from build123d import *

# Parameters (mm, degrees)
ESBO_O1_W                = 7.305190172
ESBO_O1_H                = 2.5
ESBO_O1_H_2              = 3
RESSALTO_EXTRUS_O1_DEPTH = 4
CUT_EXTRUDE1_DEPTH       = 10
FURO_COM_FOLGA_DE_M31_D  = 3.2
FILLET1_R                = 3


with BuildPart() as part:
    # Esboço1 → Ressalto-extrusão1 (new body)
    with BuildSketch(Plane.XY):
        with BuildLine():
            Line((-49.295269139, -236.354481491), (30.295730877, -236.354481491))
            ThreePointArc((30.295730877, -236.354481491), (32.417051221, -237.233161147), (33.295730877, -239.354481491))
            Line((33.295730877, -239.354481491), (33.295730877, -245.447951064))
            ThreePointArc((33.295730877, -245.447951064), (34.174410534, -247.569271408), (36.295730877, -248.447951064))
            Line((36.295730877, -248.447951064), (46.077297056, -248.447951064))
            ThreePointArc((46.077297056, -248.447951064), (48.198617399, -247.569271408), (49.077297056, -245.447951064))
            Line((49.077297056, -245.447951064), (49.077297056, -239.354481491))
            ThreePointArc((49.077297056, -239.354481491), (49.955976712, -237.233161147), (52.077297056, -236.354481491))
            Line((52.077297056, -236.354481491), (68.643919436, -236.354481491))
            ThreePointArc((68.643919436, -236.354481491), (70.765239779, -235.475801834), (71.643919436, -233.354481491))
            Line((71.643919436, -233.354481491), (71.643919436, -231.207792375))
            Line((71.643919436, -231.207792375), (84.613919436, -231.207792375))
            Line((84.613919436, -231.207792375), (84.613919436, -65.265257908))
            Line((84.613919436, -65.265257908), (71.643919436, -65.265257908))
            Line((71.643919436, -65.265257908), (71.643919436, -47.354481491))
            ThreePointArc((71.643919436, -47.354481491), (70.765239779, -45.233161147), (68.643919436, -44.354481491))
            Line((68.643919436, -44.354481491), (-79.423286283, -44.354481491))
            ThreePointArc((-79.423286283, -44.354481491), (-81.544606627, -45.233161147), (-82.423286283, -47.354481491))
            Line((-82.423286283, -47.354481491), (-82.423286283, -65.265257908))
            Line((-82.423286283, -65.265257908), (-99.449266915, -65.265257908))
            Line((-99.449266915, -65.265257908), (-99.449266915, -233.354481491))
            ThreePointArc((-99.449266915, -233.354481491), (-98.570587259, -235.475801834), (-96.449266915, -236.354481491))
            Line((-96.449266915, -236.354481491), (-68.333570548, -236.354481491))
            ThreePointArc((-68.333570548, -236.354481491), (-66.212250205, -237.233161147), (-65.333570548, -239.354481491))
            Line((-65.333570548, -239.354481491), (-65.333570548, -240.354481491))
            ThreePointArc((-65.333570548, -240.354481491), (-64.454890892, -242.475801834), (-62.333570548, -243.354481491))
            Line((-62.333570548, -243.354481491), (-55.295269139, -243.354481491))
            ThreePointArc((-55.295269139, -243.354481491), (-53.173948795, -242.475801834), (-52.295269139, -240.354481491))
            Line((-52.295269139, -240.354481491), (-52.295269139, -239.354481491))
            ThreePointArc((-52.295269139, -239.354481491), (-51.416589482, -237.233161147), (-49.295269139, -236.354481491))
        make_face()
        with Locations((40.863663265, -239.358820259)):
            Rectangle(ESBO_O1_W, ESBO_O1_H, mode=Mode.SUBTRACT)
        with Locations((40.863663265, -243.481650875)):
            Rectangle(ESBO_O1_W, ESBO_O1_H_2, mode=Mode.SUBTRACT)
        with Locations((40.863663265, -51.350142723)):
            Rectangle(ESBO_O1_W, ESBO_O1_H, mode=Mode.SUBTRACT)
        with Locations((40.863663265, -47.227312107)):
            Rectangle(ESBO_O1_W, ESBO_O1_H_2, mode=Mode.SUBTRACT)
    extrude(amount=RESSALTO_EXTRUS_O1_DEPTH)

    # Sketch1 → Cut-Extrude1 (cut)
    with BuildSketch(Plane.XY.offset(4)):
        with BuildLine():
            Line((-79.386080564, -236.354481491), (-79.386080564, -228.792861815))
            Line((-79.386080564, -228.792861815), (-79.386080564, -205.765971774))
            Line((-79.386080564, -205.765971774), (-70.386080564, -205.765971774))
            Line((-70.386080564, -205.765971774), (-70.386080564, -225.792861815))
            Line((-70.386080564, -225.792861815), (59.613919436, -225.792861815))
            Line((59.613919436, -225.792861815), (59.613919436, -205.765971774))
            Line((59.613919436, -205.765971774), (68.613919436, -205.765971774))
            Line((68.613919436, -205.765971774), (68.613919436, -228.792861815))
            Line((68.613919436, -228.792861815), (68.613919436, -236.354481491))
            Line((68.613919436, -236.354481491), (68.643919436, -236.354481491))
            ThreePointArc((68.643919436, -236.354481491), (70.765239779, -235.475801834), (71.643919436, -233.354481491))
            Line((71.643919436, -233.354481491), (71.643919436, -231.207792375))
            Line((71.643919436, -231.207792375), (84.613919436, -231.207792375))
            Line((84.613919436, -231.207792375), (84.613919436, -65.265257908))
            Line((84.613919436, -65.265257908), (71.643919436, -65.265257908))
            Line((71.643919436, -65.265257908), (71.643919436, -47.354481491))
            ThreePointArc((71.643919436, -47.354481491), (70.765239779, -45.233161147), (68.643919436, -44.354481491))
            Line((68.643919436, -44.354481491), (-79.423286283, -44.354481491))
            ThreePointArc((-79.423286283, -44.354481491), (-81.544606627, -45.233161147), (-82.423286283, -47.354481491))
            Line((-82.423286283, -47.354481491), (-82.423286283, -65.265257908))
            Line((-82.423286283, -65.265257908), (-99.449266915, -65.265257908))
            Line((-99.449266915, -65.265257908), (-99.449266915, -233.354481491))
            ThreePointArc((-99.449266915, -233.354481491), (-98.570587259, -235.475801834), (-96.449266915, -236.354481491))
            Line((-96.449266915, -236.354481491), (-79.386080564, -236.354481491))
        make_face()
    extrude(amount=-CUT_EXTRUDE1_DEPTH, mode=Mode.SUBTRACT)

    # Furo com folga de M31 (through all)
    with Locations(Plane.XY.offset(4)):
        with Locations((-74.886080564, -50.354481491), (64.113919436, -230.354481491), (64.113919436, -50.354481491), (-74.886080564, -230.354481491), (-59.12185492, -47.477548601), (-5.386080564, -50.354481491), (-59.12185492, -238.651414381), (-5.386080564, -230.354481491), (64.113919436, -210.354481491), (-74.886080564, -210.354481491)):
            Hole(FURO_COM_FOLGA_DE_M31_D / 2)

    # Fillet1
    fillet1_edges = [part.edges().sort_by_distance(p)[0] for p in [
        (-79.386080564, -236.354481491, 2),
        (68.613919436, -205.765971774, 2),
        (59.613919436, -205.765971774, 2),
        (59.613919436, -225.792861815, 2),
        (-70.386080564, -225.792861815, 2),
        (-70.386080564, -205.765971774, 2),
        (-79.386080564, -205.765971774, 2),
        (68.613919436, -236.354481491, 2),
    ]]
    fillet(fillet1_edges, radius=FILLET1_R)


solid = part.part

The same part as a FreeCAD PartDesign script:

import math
import FreeCAD as App
import Part
import Sketcher

V = App.Vector


def edges_at(feature, points):
    """Names of the edges that pass closest to the given points."""
    edges = feature.Shape.Edges
    near = lambda p: min(range(len(edges)), key=lambda i: edges[i].distToShape(Part.Vertex(*p))[0])
    return sorted({f"Edge{near(p) + 1}" for p in points})

doc = App.newDocument("Part")
body = doc.addObject("PartDesign::Body", "Body")

sketch1 = body.newObject("Sketcher::SketchObject", "Sketch")
sketch1.AttachmentSupport = (doc.getObject("XY_Plane"), [""])
sketch1.MapMode = "FlatFace"
sketch1.addGeometry([
    Part.LineSegment(V(-49.295269, -236.354481, 0), V(30.295731, -236.354481, 0)),
    Part.ArcOfCircle(Part.Circle(V(30.295731, -239.354481, 0), V(0, 0, 1), 3), math.radians(0), math.radians(90)),
    Part.LineSegment(V(33.295731, -239.354481, 0), V(33.295731, -245.447951, 0)),
    Part.ArcOfCircle(Part.Circle(V(36.295731, -245.447951, 0), V(0, 0, 1), 3), math.radians(180), math.radians(270)),
    Part.LineSegment(V(36.295731, -248.447951, 0), V(46.077297, -248.447951, 0)),
    Part.ArcOfCircle(Part.Circle(V(46.077297, -245.447951, 0), V(0, 0, 1), 3), math.radians(-90), math.radians(0)),
    Part.LineSegment(V(49.077297, -245.447951, 0), V(49.077297, -239.354481, 0)),
    Part.ArcOfCircle(Part.Circle(V(52.077297, -239.354481, 0), V(0, 0, 1), 3), math.radians(90), math.radians(180)),
    Part.LineSegment(V(52.077297, -236.354481, 0), V(68.643919, -236.354481, 0)),
    Part.ArcOfCircle(Part.Circle(V(68.643919, -233.354481, 0), V(0, 0, 1), 3), math.radians(-90), math.radians(0)),
    Part.LineSegment(V(71.643919, -233.354481, 0), V(71.643919, -231.207792, 0)),
    Part.LineSegment(V(71.643919, -231.207792, 0), V(84.613919, -231.207792, 0)),
    Part.LineSegment(V(84.613919, -231.207792, 0), V(84.613919, -65.265258, 0)),
    Part.LineSegment(V(84.613919, -65.265258, 0), V(71.643919, -65.265258, 0)),
    Part.LineSegment(V(71.643919, -65.265258, 0), V(71.643919, -47.354481, 0)),
    Part.ArcOfCircle(Part.Circle(V(68.643919, -47.354481, 0), V(0, 0, 1), 3), math.radians(0), math.radians(90)),
    Part.LineSegment(V(68.643919, -44.354481, 0), V(-79.423286, -44.354481, 0)),
    Part.ArcOfCircle(Part.Circle(V(-79.423286, -47.354481, 0), V(0, 0, 1), 3), math.radians(90), math.radians(180)),
    Part.LineSegment(V(-82.423286, -47.354481, 0), V(-82.423286, -65.265258, 0)),
    Part.LineSegment(V(-82.423286, -65.265258, 0), V(-99.449267, -65.265258, 0)),
    Part.LineSegment(V(-99.449267, -65.265258, 0), V(-99.449267, -233.354481, 0)),
    Part.ArcOfCircle(Part.Circle(V(-96.449267, -233.354481, 0), V(0, 0, 1), 3), math.radians(180), math.radians(270)),
    Part.LineSegment(V(-96.449267, -236.354481, 0), V(-68.333571, -236.354481, 0)),
    Part.ArcOfCircle(Part.Circle(V(-68.333571, -239.354481, 0), V(0, 0, 1), 3), math.radians(0), math.radians(90)),
    Part.LineSegment(V(-65.333571, -239.354481, 0), V(-65.333571, -240.354481, 0)),
    Part.ArcOfCircle(Part.Circle(V(-62.333571, -240.354481, 0), V(0, 0, 1), 3), math.radians(180), math.radians(270)),
    Part.LineSegment(V(-62.333571, -243.354481, 0), V(-55.295269, -243.354481, 0)),
    Part.ArcOfCircle(Part.Circle(V(-55.295269, -240.354481, 0), V(0, 0, 1), 3), math.radians(-90), math.radians(0)),
    Part.LineSegment(V(-52.295269, -240.354481, 0), V(-52.295269, -239.354481, 0)),
    Part.ArcOfCircle(Part.Circle(V(-49.295269, -239.354481, 0), V(0, 0, 1), 3), math.radians(90), math.radians(180)),
    Part.LineSegment(V(44.516258, -244.981651, 0), V(37.211068, -244.981651, 0)),
    Part.LineSegment(V(37.211068, -244.981651, 0), V(37.211068, -241.981651, 0)),
    Part.LineSegment(V(37.211068, -241.981651, 0), V(44.516258, -241.981651, 0)),
    Part.LineSegment(V(44.516258, -241.981651, 0), V(44.516258, -244.981651, 0)),
    Part.LineSegment(V(44.516258, -240.60882, 0), V(37.211068, -240.60882, 0)),
    Part.LineSegment(V(37.211068, -240.60882, 0), V(37.211068, -238.10882, 0)),
    Part.LineSegment(V(37.211068, -238.10882, 0), V(44.516258, -238.10882, 0)),
    Part.LineSegment(V(44.516258, -238.10882, 0), V(44.516258, -240.60882, 0)),
    Part.LineSegment(V(44.516258, -52.600143, 0), V(37.211068, -52.600143, 0)),
    Part.LineSegment(V(37.211068, -52.600143, 0), V(37.211068, -50.100143, 0)),
    Part.LineSegment(V(37.211068, -50.100143, 0), V(44.516258, -50.100143, 0)),
    Part.LineSegment(V(44.516258, -50.100143, 0), V(44.516258, -52.600143, 0)),
    Part.LineSegment(V(44.516258, -48.727312, 0), V(37.211068, -48.727312, 0)),
    Part.LineSegment(V(37.211068, -48.727312, 0), V(37.211068, -45.727312, 0)),
    Part.LineSegment(V(37.211068, -45.727312, 0), V(44.516258, -45.727312, 0)),
    Part.LineSegment(V(44.516258, -45.727312, 0), V(44.516258, -48.727312, 0)),
], False)
sketch1.addConstraint([
    Sketcher.Constraint("Tangent", 0, 2, 1, 2),
    Sketcher.Constraint("Tangent", 1, 1, 2, 1),
    Sketcher.Constraint("Tangent", 2, 2, 3, 1),
    Sketcher.Constraint("Tangent", 3, 2, 4, 1),
    Sketcher.Constraint("Tangent", 4, 2, 5, 1),
    Sketcher.Constraint("Tangent", 5, 2, 6, 1),
    Sketcher.Constraint("Tangent", 6, 2, 7, 2),
    Sketcher.Constraint("Tangent", 7, 1, 8, 1),
    Sketcher.Constraint("Tangent", 8, 2, 9, 1),
    Sketcher.Constraint("Tangent", 9, 2, 10, 1),
    Sketcher.Constraint("Coincident", 10, 2, 11, 1),
    Sketcher.Constraint("Coincident", 11, 2, 12, 1),
    Sketcher.Constraint("Coincident", 12, 2, 13, 1),
    Sketcher.Constraint("Coincident", 13, 2, 14, 1),
    Sketcher.Constraint("Tangent", 14, 2, 15, 1),
    Sketcher.Constraint("Tangent", 15, 2, 16, 1),
    Sketcher.Constraint("Tangent", 16, 2, 17, 1),
    Sketcher.Constraint("Tangent", 17, 2, 18, 1),
    Sketcher.Constraint("Coincident", 18, 2, 19, 1),
    Sketcher.Constraint("Coincident", 19, 2, 20, 1),
    Sketcher.Constraint("Tangent", 20, 2, 21, 1),
    Sketcher.Constraint("Tangent", 21, 2, 22, 1),
    Sketcher.Constraint("Tangent", 22, 2, 23, 2),
    Sketcher.Constraint("Tangent", 23, 1, 24, 1),
    Sketcher.Constraint("Tangent", 24, 2, 25, 1),
    Sketcher.Constraint("Tangent", 25, 2, 26, 1),
    Sketcher.Constraint("Tangent", 26, 2, 27, 1),
    Sketcher.Constraint("Tangent", 27, 2, 28, 1),
    Sketcher.Constraint("Tangent", 28, 2, 29, 2),
    Sketcher.Constraint("Tangent", 29, 1, 0, 1),
    Sketcher.Constraint("Coincident", 30, 2, 31, 1),
    Sketcher.Constraint("Coincident", 31, 2, 32, 1),
    Sketcher.Constraint("Coincident", 32, 2, 33, 1),
    Sketcher.Constraint("Coincident", 33, 2, 30, 1),
    Sketcher.Constraint("Coincident", 34, 2, 35, 1),
    Sketcher.Constraint("Coincident", 35, 2, 36, 1),
    Sketcher.Constraint("Coincident", 36, 2, 37, 1),
    Sketcher.Constraint("Coincident", 37, 2, 34, 1),
    Sketcher.Constraint("Coincident", 38, 2, 39, 1),
    Sketcher.Constraint("Coincident", 39, 2, 40, 1),
    Sketcher.Constraint("Coincident", 40, 2, 41, 1),
    Sketcher.Constraint("Coincident", 41, 2, 38, 1),
    Sketcher.Constraint("Coincident", 42, 2, 43, 1),
    Sketcher.Constraint("Coincident", 43, 2, 44, 1),
    Sketcher.Constraint("Coincident", 44, 2, 45, 1),
    Sketcher.Constraint("Coincident", 45, 2, 42, 1),
    Sketcher.Constraint("Horizontal", 0),
    Sketcher.Constraint("Vertical", 2),
    Sketcher.Constraint("Horizontal", 4),
    Sketcher.Constraint("Vertical", 6),
    Sketcher.Constraint("Horizontal", 8),
    Sketcher.Constraint("Vertical", 10),
    Sketcher.Constraint("Horizontal", 11),
    Sketcher.Constraint("Vertical", 12),
    Sketcher.Constraint("Horizontal", 13),
    Sketcher.Constraint("Vertical", 14),
    Sketcher.Constraint("Horizontal", 16),
    Sketcher.Constraint("Vertical", 18),
    Sketcher.Constraint("Horizontal", 19),
    Sketcher.Constraint("Vertical", 20),
    Sketcher.Constraint("Horizontal", 22),
    Sketcher.Constraint("Vertical", 24),
    Sketcher.Constraint("Horizontal", 26),
    Sketcher.Constraint("Vertical", 28),
    Sketcher.Constraint("Horizontal", 30),
    Sketcher.Constraint("Vertical", 31),
    Sketcher.Constraint("Horizontal", 32),
    Sketcher.Constraint("Vertical", 33),
    Sketcher.Constraint("Horizontal", 34),
    Sketcher.Constraint("Vertical", 35),
    Sketcher.Constraint("Horizontal", 36),
    Sketcher.Constraint("Vertical", 37),
    Sketcher.Constraint("Horizontal", 38),
    Sketcher.Constraint("Vertical", 39),
    Sketcher.Constraint("Horizontal", 40),
    Sketcher.Constraint("Vertical", 41),
    Sketcher.Constraint("Horizontal", 42),
    Sketcher.Constraint("Vertical", 43),
    Sketcher.Constraint("Horizontal", 44),
    Sketcher.Constraint("Vertical", 45),
    Sketcher.Constraint("Equal", 1, 3),
    Sketcher.Constraint("Equal", 3, 5),
    Sketcher.Constraint("Equal", 5, 7),
    Sketcher.Constraint("Equal", 7, 9),
    Sketcher.Constraint("Equal", 9, 15),
    Sketcher.Constraint("Equal", 15, 17),
    Sketcher.Constraint("Equal", 17, 21),
    Sketcher.Constraint("Equal", 21, 23),
    Sketcher.Constraint("Equal", 23, 25),
    Sketcher.Constraint("Equal", 25, 27),
    Sketcher.Constraint("Equal", 27, 29),
    Sketcher.Constraint("Horizontal", 1, 3, 7, 3),
    Sketcher.Constraint("Horizontal", 9, 3, 21, 3),
    Sketcher.Constraint("Horizontal", 13, 2, 18, 2),
    Sketcher.Constraint("Vertical", 9, 3, 15, 3),
    Sketcher.Constraint("Vertical", 31, 2, 34, 2),
    Sketcher.Constraint("Vertical", 33, 2, 36, 2),
    Sketcher.Constraint("Vertical", 35, 2, 38, 2),
    Sketcher.Constraint("Vertical", 37, 2, 40, 2),
    Sketcher.Constraint("Vertical", 39, 2, 42, 2),
    Sketcher.Constraint("Vertical", 41, 2, 44, 2),
    Sketcher.Constraint("Equal", 37, 39),
    Sketcher.Constraint("Equal", 33, 43),
    Sketcher.Constraint("Radius", 1, 3.0),
    Sketcher.Constraint("DistanceY", 24, 2, 24, 1, 1.0),
    Sketcher.Constraint("DistanceY", 31, 1, 31, 2, 3.0),
    Sketcher.Constraint("DistanceY", 35, 1, 35, 2, 2.5),
    Sketcher.Constraint("DistanceY", 9, 3, 15, 3, 186.0),
    Sketcher.Constraint("DistanceX", 11, 1, 11, 2, 12.97),
    Sketcher.Constraint("DistanceX", 0, 1, 0, 2, 79.591),
    Sketcher.Constraint("DistanceX", 26, 1, 26, 2, 7.038301),
    Sketcher.Constraint("DistanceX", 19, 2, 19, 1, 17.025981),
    Sketcher.Constraint("DistanceX", 30, 2, 30, 1, 7.30519),
    Sketcher.Constraint("DistanceY", 2, 2, 2, 1, 6.09347),
    Sketcher.Constraint("DistanceY", 10, 1, 10, 2, 2.146689),
    Sketcher.Constraint("DistanceY", 3, 3, 30, 2, 0.4663),
    Sketcher.Constraint("DistanceX", 4, 1, 4, 2, 9.781566),
    Sketcher.Constraint("DistanceX", 8, 1, 8, 2, 16.566622),
    Sketcher.Constraint("DistanceX", 16, 2, 16, 1, 148.067206),
    Sketcher.Constraint("DistanceY", 12, 1, 12, 2, 165.942534),
    Sketcher.Constraint("DistanceX", -1, 1, 1, 3, 30.295731),
    Sketcher.Constraint("DistanceY", 1, 3, -1, 1, 239.354481),
    Sketcher.Constraint("DistanceX", -1, 1, 30, 2, 37.211068),
    Sketcher.Constraint("DistanceY", 34, 2, -1, 1, 240.60882),
    Sketcher.Constraint("DistanceY", 38, 2, 15, 3, 5.245661),
    Sketcher.Constraint("DistanceY", 39, 2, 42, 2, 1.372831),
])
pad1 = body.newObject("PartDesign::Pad", "Pad")
pad1.Profile = sketch1
pad1.Length = 4

sketch2 = body.newObject("Sketcher::SketchObject", "Sketch001")
sketch2.AttachmentSupport = (doc.getObject("XY_Plane"), [""])
sketch2.MapMode = "FlatFace"
sketch2.AttachmentOffset = App.Placement(V(0, 0, 4), App.Rotation())
sketch2.addGeometry([
    Part.LineSegment(V(-79.386081, -236.354481, 0), V(-79.386081, -205.765972, 0)),
    Part.LineSegment(V(-79.386081, -205.765972, 0), V(-70.386081, -205.765972, 0)),
    Part.LineSegment(V(-70.386081, -205.765972, 0), V(-70.386081, -225.792862, 0)),
    Part.LineSegment(V(-70.386081, -225.792862, 0), V(59.613919, -225.792862, 0)),
    Part.LineSegment(V(59.613919, -225.792862, 0), V(59.613919, -205.765972, 0)),
    Part.LineSegment(V(59.613919, -205.765972, 0), V(68.613919, -205.765972, 0)),
    Part.LineSegment(V(68.613919, -205.765972, 0), V(68.613919, -236.354481, 0)),
    Part.LineSegment(V(68.613919, -236.354481, 0), V(68.643919, -236.354481, 0)),
    Part.ArcOfCircle(Part.Circle(V(68.643919, -233.354481, 0), V(0, 0, 1), 3), math.radians(-90), math.radians(0)),
    Part.LineSegment(V(71.643919, -233.354481, 0), V(71.643919, -231.207792, 0)),
    Part.LineSegment(V(71.643919, -231.207792, 0), V(84.613919, -231.207792, 0)),
    Part.LineSegment(V(84.613919, -231.207792, 0), V(84.613919, -65.265258, 0)),
    Part.LineSegment(V(84.613919, -65.265258, 0), V(71.643919, -65.265258, 0)),
    Part.LineSegment(V(71.643919, -65.265258, 0), V(71.643919, -47.354481, 0)),
    Part.ArcOfCircle(Part.Circle(V(68.643919, -47.354481, 0), V(0, 0, 1), 3), math.radians(0), math.radians(90)),
    Part.LineSegment(V(68.643919, -44.354481, 0), V(-79.423286, -44.354481, 0)),
    Part.ArcOfCircle(Part.Circle(V(-79.423286, -47.354481, 0), V(0, 0, 1), 3), math.radians(90), math.radians(180)),
    Part.LineSegment(V(-82.423286, -47.354481, 0), V(-82.423286, -65.265258, 0)),
    Part.LineSegment(V(-82.423286, -65.265258, 0), V(-99.449267, -65.265258, 0)),
    Part.LineSegment(V(-99.449267, -65.265258, 0), V(-99.449267, -233.354481, 0)),
    Part.ArcOfCircle(Part.Circle(V(-96.449267, -233.354481, 0), V(0, 0, 1), 3), math.radians(180), math.radians(270)),
    Part.LineSegment(V(-96.449267, -236.354481, 0), V(-79.386081, -236.354481, 0)),
], False)
sketch2.addConstraint([
    Sketcher.Constraint("Coincident", 0, 2, 1, 1),
    Sketcher.Constraint("Coincident", 1, 2, 2, 1),
    Sketcher.Constraint("Coincident", 2, 2, 3, 1),
    Sketcher.Constraint("Coincident", 3, 2, 4, 1),
    Sketcher.Constraint("Coincident", 4, 2, 5, 1),
    Sketcher.Constraint("Coincident", 5, 2, 6, 1),
    Sketcher.Constraint("Coincident", 6, 2, 7, 1),
    Sketcher.Constraint("Tangent", 7, 2, 8, 1),
    Sketcher.Constraint("Tangent", 8, 2, 9, 1),
    Sketcher.Constraint("Coincident", 9, 2, 10, 1),
    Sketcher.Constraint("Coincident", 10, 2, 11, 1),
    Sketcher.Constraint("Coincident", 11, 2, 12, 1),
    Sketcher.Constraint("Coincident", 12, 2, 13, 1),
    Sketcher.Constraint("Tangent", 13, 2, 14, 1),
    Sketcher.Constraint("Tangent", 14, 2, 15, 1),
    Sketcher.Constraint("Tangent", 15, 2, 16, 1),
    Sketcher.Constraint("Tangent", 16, 2, 17, 1),
    Sketcher.Constraint("Coincident", 17, 2, 18, 1),
    Sketcher.Constraint("Coincident", 18, 2, 19, 1),
    Sketcher.Constraint("Tangent", 19, 2, 20, 1),
    Sketcher.Constraint("Tangent", 20, 2, 21, 1),
    Sketcher.Constraint("Coincident", 21, 2, 0, 1),
    Sketcher.Constraint("Vertical", 0),
    Sketcher.Constraint("Horizontal", 1),
    Sketcher.Constraint("Vertical", 2),
    Sketcher.Constraint("Horizontal", 3),
    Sketcher.Constraint("Vertical", 4),
    Sketcher.Constraint("Horizontal", 5),
    Sketcher.Constraint("Vertical", 6),
    Sketcher.Constraint("Horizontal", 7),
    Sketcher.Constraint("Vertical", 9),
    Sketcher.Constraint("Horizontal", 10),
    Sketcher.Constraint("Vertical", 11),
    Sketcher.Constraint("Horizontal", 12),
    Sketcher.Constraint("Vertical", 13),
    Sketcher.Constraint("Horizontal", 15),
    Sketcher.Constraint("Vertical", 17),
    Sketcher.Constraint("Horizontal", 18),
    Sketcher.Constraint("Vertical", 19),
    Sketcher.Constraint("Horizontal", 21),
    Sketcher.Constraint("Equal", 8, 14),
    Sketcher.Constraint("Equal", 14, 16),
    Sketcher.Constraint("Equal", 16, 20),
    Sketcher.Constraint("Horizontal", 8, 3, 20, 3),
    Sketcher.Constraint("Horizontal", 1, 2, 4, 2),
    Sketcher.Constraint("Horizontal", 12, 2, 17, 2),
    Sketcher.Constraint("Vertical", 8, 3, 14, 3),
    Sketcher.Constraint("Equal", 1, 5),
    Sketcher.Constraint("Radius", 8, 3.0),
    Sketcher.Constraint("DistanceX", 1, 1, 1, 2, 9.0),
    Sketcher.Constraint("DistanceX", 3, 1, 3, 2, 130.0),
    Sketcher.Constraint("DistanceY", 8, 3, 14, 3, 186.0),
    Sketcher.Constraint("DistanceX", 6, 2, 10, 2, 16.0),
    Sketcher.Constraint("DistanceX", 7, 1, 7, 2, 0.03),
    Sketcher.Constraint("DistanceX", 18, 2, 18, 1, 17.025981),
    Sketcher.Constraint("DistanceY", 0, 1, 0, 2, 30.58851),
    Sketcher.Constraint("DistanceY", 2, 2, 2, 1, 20.02689),
    Sketcher.Constraint("DistanceY", 9, 1, 9, 2, 2.146689),
    Sketcher.Constraint("DistanceX", 15, 2, 15, 1, 148.067206),
    Sketcher.Constraint("DistanceY", 11, 1, 11, 2, 165.942534),
    Sketcher.Constraint("DistanceX", -1, 1, 8, 3, 68.643919),
    Sketcher.Constraint("DistanceY", 8, 3, -1, 1, 233.354481),
])
pocket1 = body.newObject("PartDesign::Pocket", "Pocket")
pocket1.Profile = sketch2
pocket1.Length = 10

sketch3 = body.newObject("Sketcher::SketchObject", "Sketch002")
sketch3.AttachmentSupport = (doc.getObject("XY_Plane"), [""])
sketch3.MapMode = "FlatFace"
sketch3.AttachmentOffset = App.Placement(V(0, 0, 4), App.Rotation())
sketch3.addGeometry([
    Part.Circle(V(-74.886081, -50.354481, 0), V(0, 0, 1), 1.6),
    Part.Circle(V(64.113919, -230.354481, 0), V(0, 0, 1), 1.6),
    Part.Circle(V(64.113919, -50.354481, 0), V(0, 0, 1), 1.6),
    Part.Circle(V(-74.886081, -230.354481, 0), V(0, 0, 1), 1.6),
    Part.Circle(V(-59.121855, -47.477549, 0), V(0, 0, 1), 1.6),
    Part.Circle(V(-5.386081, -50.354481, 0), V(0, 0, 1), 1.6),
    Part.Circle(V(-59.121855, -238.651414, 0), V(0, 0, 1), 1.6),
    Part.Circle(V(-5.386081, -230.354481, 0), V(0, 0, 1), 1.6),
    Part.Circle(V(64.113919, -210.354481, 0), V(0, 0, 1), 1.6),
    Part.Circle(V(-74.886081, -210.354481, 0), V(0, 0, 1), 1.6),
], False)
sketch3.addConstraint([
    Sketcher.Constraint("Equal", 0, 1),
    Sketcher.Constraint("Equal", 1, 2),
    Sketcher.Constraint("Equal", 2, 3),
    Sketcher.Constraint("Equal", 3, 4),
    Sketcher.Constraint("Equal", 4, 5),
    Sketcher.Constraint("Equal", 5, 6),
    Sketcher.Constraint("Equal", 6, 7),
    Sketcher.Constraint("Equal", 7, 8),
    Sketcher.Constraint("Equal", 8, 9),
    Sketcher.Constraint("Horizontal", 0, 3, 2, 3),
    Sketcher.Constraint("Horizontal", 1, 3, 3, 3),
    Sketcher.Constraint("Horizontal", 2, 3, 5, 3),
    Sketcher.Constraint("Horizontal", 3, 3, 7, 3),
    Sketcher.Constraint("Horizontal", 8, 3, 9, 3),
    Sketcher.Constraint("Vertical", 1, 3, 2, 3),
    Sketcher.Constraint("Vertical", 0, 3, 3, 3),
    Sketcher.Constraint("Vertical", 4, 3, 6, 3),
    Sketcher.Constraint("Vertical", 5, 3, 7, 3),
    Sketcher.Constraint("Vertical", 2, 3, 8, 3),
    Sketcher.Constraint("Vertical", 3, 3, 9, 3),
    Sketcher.Constraint("Diameter", 0, 3.2),
    Sketcher.Constraint("DistanceX", 0, 3, 1, 3, 139.0),
    Sketcher.Constraint("DistanceY", 1, 3, 0, 3, 180.0),
    Sketcher.Constraint("DistanceY", 1, 3, 8, 3, 20.0),
    Sketcher.Constraint("DistanceX", 0, 3, 5, 3, 69.5),
    Sketcher.Constraint("DistanceX", 0, 3, -1, 1, 74.886081),
    Sketcher.Constraint("DistanceY", 0, 3, -1, 1, 50.354481),
    Sketcher.Constraint("DistanceY", 4, 3, -1, 1, 47.477549),
    Sketcher.Constraint("DistanceX", 4, 3, -1, 1, 59.121855),
    Sketcher.Constraint("DistanceY", 6, 3, -1, 1, 238.651414),
])
doc.recompute()
hole = body.newObject("PartDesign::Hole", "Hole")
hole.Profile = sketch3
hole.ThreadType = "None"
hole.Diameter = 3.2
hole.DepthType = "ThroughAll"
doc.recompute()

fillet = body.newObject("PartDesign::Fillet", "Fillet")
fillet.Base = (hole, edges_at(hole, [
    (-79.386, -236.354, 2),
    (68.614, -205.766, 2),
    (59.614, -205.766, 2),
    (59.614, -225.793, 2),
    (-70.386, -225.793, 2),
    (-70.386, -205.766, 2),
    (-79.386, -205.766, 2),
    (68.614, -236.354, 2),
]))
fillet.Radius = 3

doc.recompute()
